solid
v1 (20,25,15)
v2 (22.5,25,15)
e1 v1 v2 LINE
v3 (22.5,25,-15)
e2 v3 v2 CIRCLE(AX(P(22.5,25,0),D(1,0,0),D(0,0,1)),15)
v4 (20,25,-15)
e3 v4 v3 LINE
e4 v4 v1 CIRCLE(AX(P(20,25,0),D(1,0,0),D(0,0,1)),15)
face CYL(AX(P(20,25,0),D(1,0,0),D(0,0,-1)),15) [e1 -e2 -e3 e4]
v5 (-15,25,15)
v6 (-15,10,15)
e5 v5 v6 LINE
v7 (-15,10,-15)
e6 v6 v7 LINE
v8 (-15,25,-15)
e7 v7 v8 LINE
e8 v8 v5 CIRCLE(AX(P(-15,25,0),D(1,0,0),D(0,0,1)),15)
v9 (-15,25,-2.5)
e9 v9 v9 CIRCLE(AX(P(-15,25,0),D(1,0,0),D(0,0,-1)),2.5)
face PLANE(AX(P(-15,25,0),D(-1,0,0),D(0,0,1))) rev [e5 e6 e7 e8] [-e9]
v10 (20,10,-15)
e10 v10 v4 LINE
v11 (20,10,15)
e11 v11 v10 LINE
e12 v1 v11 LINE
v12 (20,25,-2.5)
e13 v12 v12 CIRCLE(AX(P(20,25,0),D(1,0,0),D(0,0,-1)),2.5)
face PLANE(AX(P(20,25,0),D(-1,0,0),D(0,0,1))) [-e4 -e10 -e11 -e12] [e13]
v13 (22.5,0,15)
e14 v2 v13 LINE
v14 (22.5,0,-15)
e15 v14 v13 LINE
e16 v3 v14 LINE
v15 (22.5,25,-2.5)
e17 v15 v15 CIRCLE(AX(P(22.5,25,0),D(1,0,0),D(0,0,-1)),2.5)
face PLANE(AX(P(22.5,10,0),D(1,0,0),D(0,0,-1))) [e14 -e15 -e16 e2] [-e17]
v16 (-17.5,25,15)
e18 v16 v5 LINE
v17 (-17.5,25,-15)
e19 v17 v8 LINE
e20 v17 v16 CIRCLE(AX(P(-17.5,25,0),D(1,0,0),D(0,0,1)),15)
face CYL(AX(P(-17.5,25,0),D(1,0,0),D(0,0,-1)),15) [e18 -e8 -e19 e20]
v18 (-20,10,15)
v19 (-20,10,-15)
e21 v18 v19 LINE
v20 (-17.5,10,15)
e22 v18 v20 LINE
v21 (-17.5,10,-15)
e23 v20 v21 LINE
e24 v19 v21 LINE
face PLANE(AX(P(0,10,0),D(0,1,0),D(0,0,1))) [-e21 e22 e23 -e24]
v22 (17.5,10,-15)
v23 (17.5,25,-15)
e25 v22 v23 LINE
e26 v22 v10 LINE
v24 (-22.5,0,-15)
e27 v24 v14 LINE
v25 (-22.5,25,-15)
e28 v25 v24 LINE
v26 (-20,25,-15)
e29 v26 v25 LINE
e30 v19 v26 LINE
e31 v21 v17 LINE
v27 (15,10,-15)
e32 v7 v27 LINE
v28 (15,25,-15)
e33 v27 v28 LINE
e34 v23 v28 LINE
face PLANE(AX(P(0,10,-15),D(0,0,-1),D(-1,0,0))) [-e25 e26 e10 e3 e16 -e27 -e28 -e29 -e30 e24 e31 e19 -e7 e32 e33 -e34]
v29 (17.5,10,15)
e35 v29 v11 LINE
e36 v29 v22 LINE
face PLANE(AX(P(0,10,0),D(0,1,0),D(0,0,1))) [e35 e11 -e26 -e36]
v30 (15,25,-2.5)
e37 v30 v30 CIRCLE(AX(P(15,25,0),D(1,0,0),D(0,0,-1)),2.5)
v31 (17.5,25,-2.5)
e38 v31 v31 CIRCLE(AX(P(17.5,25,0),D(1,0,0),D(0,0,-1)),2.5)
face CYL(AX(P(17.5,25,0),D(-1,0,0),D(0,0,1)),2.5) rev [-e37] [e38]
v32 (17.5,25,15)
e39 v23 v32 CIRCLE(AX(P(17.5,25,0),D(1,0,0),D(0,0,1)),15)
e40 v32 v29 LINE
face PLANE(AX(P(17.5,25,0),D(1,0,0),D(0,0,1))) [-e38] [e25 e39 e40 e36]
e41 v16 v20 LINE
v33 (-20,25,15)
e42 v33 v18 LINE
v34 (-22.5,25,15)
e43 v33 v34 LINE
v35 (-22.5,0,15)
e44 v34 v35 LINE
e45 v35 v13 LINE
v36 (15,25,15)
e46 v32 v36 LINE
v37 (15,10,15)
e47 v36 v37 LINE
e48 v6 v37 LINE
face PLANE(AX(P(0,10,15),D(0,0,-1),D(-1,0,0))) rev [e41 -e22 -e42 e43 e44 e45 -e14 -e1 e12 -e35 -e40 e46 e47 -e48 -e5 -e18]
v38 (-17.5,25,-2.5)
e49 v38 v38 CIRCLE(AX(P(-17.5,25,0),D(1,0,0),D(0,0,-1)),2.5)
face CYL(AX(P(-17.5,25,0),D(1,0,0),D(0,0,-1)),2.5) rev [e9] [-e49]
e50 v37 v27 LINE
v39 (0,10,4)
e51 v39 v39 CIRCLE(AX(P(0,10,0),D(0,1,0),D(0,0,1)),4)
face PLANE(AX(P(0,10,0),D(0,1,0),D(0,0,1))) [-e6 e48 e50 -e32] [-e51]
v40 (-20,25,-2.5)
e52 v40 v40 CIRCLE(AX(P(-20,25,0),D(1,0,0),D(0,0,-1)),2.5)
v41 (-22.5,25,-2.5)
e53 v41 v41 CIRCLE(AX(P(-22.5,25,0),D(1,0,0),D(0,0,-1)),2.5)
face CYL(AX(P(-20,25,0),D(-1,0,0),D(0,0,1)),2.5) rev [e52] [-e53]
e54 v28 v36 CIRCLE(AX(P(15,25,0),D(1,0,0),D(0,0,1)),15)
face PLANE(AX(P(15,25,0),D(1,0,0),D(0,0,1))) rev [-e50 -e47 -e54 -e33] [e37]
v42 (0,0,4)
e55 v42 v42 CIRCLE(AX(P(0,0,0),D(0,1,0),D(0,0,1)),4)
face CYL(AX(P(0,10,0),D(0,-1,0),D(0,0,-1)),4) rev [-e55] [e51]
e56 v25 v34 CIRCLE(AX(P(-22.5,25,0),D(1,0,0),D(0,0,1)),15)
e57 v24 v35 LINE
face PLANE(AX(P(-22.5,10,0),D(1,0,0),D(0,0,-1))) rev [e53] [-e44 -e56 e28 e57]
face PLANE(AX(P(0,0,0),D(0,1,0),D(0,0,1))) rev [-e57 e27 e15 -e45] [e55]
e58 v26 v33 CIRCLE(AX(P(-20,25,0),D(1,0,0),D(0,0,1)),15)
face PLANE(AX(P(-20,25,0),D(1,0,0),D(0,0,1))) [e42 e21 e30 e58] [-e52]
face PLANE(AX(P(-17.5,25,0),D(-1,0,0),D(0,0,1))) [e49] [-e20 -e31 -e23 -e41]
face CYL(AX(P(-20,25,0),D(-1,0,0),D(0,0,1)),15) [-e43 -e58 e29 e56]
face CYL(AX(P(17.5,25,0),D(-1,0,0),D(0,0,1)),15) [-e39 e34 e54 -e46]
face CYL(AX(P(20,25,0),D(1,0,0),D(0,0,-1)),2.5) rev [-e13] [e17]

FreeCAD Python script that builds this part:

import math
import FreeCAD as App
import Part
import Sketcher

V = App.Vector

doc = App.newDocument("Part")
body = doc.addObject("PartDesign::Body", "Body")

sketch1 = doc.addObject("Sketcher::SketchObject", "Sketch")
body.addObject(sketch1)
sketch1.AttachmentSupport = (doc.XZ_Plane, [""])
sketch1.MapMode = "FlatFace"
sketch1.addGeometry(Part.LineSegment(V(-22.5, -15, 0), V(-22.5, 15, 0)), False)
sketch1.addGeometry(Part.LineSegment(V(-22.5, 15, 0), V(22.5, 15, 0)), False)
sketch1.addGeometry(Part.LineSegment(V(22.5, 15, 0), V(22.5, -15, 0)), False)
sketch1.addGeometry(Part.LineSegment(V(22.5, -15, 0), V(-22.5, -15, 0)), False)
sketch1.addGeometry(Part.Circle(V(0, 0, 0), V(0, 0, 1), 4), False)
sketch1.addConstraint(Sketcher.Constraint("Coincident", 0, 2, 1, 1))
sketch1.addConstraint(Sketcher.Constraint("Coincident", 1, 2, 2, 1))
sketch1.addConstraint(Sketcher.Constraint("Coincident", 2, 2, 3, 1))
sketch1.addConstraint(Sketcher.Constraint("Coincident", 3, 2, 0, 1))
sketch1.addConstraint(Sketcher.Constraint("Vertical", 0))
sketch1.addConstraint(Sketcher.Constraint("Horizontal", 1))
sketch1.addConstraint(Sketcher.Constraint("Vertical", 2))
sketch1.addConstraint(Sketcher.Constraint("Horizontal", 3))
sketch1.addConstraint(Sketcher.Constraint("Coincident", 4, 3, -1, 1))
sketch1.addConstraint(Sketcher.Constraint("Symmetric", 0, 2, 2, 2, -1, 1))
sketch1.addConstraint(Sketcher.Constraint("Diameter", 4, 8.0))
sketch1.addConstraint(Sketcher.Constraint("DistanceX", 1, 1, 1, 2, 45.0))
sketch1.addConstraint(Sketcher.Constraint("DistanceY", 0, 1, 0, 2, 30.0))
pad1 = doc.addObject("PartDesign::Pad", "Pad")
body.addObject(pad1)
pad1.Profile = sketch1
pad1.Length = 10
pad1.Reversed = True

sketch2 = doc.addObject("Sketcher::SketchObject", "Sketch001")
body.addObject(sketch2)
sketch2.AttachmentSupport = (doc.YZ_Plane, [""])
sketch2.MapMode = "FlatFace"
sketch2.AttachmentOffset = App.Placement(V(0, 0, 22.5), App.Rotation())
sketch2.addGeometry(Part.LineSegment(V(10, 15, 0), V(10, -15, 0)), False)
sketch2.addGeometry(Part.LineSegment(V(10, -15, 0), V(25, -15, 0)), False)
sketch2.addGeometry(Part.ArcOfCircle(Part.Circle(V(25, 0, 0), V(0, 0, 1), 15), math.radians(-90), math.radians(90)), False)
sketch2.addGeometry(Part.LineSegment(V(25, 15, 0), V(10, 15, 0)), False)
sketch2.addGeometry(Part.Circle(V(25, 0, 0), V(0, 0, 1), 2.5), False)
sketch2.addConstraint(Sketcher.Constraint("Coincident", 0, 2, 1, 1))
sketch2.addConstraint(Sketcher.Constraint("Tangent", 1, 2, 2, 1))
sketch2.addConstraint(Sketcher.Constraint("Tangent", 2, 2, 3, 1))
sketch2.addConstraint(Sketcher.Constraint("Coincident", 3, 2, 0, 1))
sketch2.addConstraint(Sketcher.Constraint("Vertical", 0))
sketch2.addConstraint(Sketcher.Constraint("Horizontal", 1))
sketch2.addConstraint(Sketcher.Constraint("Horizontal", 3))
sketch2.addConstraint(Sketcher.Constraint("Coincident", 4, 3, 2, 3))
sketch2.addConstraint(Sketcher.Constraint("PointOnObject", 2, 3, -1))
sketch2.addConstraint(Sketcher.Constraint("Diameter", 4, 5.0))
sketch2.addConstraint(Sketcher.Constraint("Radius", 2, 15.0))
sketch2.addConstraint(Sketcher.Constraint("DistanceX", 1, 1, 1, 2, 15.0))
sketch2.addConstraint(Sketcher.Constraint("DistanceX", -1, 1, 2, 3, 25.0))
pad2 = doc.addObject("PartDesign::Pad", "Pad001")
body.addObject(pad2)
pad2.Profile = sketch2
pad2.Length = 2.5
pad2.Reversed = True
doc.recompute()

datumplane = doc.addObject("PartDesign::Plane", "DatumPlane")
body.addObject(datumplane)
datumplane.AttachmentSupport = (doc.YZ_Plane, [""])
datumplane.MapMode = "FlatFace"
datumplane.AttachmentOffset = App.Placement(V(0, 0, 18.75), App.Rotation())
mirrored = doc.addObject("PartDesign::Mirrored", "Mirrored")
body.addObject(mirrored)
mirrored.Originals = [pad2]
mirrored.MirrorPlane = (datumplane, [""])
body.Tip = mirrored
doc.recompute()

mirrored2 = doc.addObject("PartDesign::Mirrored", "Mirrored001")
body.addObject(mirrored2)
mirrored2.Originals = [pad2]
mirrored2.MirrorPlane = (doc.YZ_Plane, [""])
body.Tip = mirrored2

sketch3 = doc.addObject("Sketcher::SketchObject", "Sketch002")
body.addObject(sketch3)
sketch3.AttachmentSupport = (doc.YZ_Plane, [""])
sketch3.MapMode = "FlatFace"
sketch3.AttachmentOffset = App.Placement(V(0, 0, -15), App.Rotation())
sketch3.addGeometry(Part.LineSegment(V(10, 15, 0), V(10, -15, 0)), False)
sketch3.addGeometry(Part.LineSegment(V(10, -15, 0), V(25, -15, 0)), False)
sketch3.addGeometry(Part.ArcOfCircle(Part.Circle(V(25, 0, 0), V(0, 0, 1), 15), math.radians(-90), math.radians(90)), False)
sketch3.addGeometry(Part.LineSegment(V(25, 15, 0), V(10, 15, 0)), False)
sketch3.addGeometry(Part.Circle(V(25, 0, 0), V(0, 0, 1), 2.5), False)
sketch3.addConstraint(Sketcher.Constraint("Coincident", 0, 2, 1, 1))
sketch3.addConstraint(Sketcher.Constraint("Tangent", 1, 2, 2, 1))
sketch3.addConstraint(Sketcher.Constraint("Tangent", 2, 2, 3, 1))
sketch3.addConstraint(Sketcher.Constraint("Coincident", 3, 2, 0, 1))
sketch3.addConstraint(Sketcher.Constraint("Vertical", 0))
sketch3.addConstraint(Sketcher.Constraint("Horizontal", 1))
sketch3.addConstraint(Sketcher.Constraint("Horizontal", 3))
sketch3.addConstraint(Sketcher.Constraint("Coincident", 4, 3, 2, 3))
sketch3.addConstraint(Sketcher.Constraint("PointOnObject", 2, 3, -1))
sketch3.addConstraint(Sketcher.Constraint("Diameter", 4, 5.0))
sketch3.addConstraint(Sketcher.Constraint("Radius", 2, 15.0))
sketch3.addConstraint(Sketcher.Constraint("DistanceX", 1, 1, 1, 2, 15.0))
sketch3.addConstraint(Sketcher.Constraint("DistanceX", -1, 1, 2, 3, 25.0))
pad3 = doc.addObject("PartDesign::Pad", "Pad002")
body.addObject(pad3)
pad3.Profile = sketch3
pad3.Length = 2.5
pad3.Reversed = True

doc.recompute()
